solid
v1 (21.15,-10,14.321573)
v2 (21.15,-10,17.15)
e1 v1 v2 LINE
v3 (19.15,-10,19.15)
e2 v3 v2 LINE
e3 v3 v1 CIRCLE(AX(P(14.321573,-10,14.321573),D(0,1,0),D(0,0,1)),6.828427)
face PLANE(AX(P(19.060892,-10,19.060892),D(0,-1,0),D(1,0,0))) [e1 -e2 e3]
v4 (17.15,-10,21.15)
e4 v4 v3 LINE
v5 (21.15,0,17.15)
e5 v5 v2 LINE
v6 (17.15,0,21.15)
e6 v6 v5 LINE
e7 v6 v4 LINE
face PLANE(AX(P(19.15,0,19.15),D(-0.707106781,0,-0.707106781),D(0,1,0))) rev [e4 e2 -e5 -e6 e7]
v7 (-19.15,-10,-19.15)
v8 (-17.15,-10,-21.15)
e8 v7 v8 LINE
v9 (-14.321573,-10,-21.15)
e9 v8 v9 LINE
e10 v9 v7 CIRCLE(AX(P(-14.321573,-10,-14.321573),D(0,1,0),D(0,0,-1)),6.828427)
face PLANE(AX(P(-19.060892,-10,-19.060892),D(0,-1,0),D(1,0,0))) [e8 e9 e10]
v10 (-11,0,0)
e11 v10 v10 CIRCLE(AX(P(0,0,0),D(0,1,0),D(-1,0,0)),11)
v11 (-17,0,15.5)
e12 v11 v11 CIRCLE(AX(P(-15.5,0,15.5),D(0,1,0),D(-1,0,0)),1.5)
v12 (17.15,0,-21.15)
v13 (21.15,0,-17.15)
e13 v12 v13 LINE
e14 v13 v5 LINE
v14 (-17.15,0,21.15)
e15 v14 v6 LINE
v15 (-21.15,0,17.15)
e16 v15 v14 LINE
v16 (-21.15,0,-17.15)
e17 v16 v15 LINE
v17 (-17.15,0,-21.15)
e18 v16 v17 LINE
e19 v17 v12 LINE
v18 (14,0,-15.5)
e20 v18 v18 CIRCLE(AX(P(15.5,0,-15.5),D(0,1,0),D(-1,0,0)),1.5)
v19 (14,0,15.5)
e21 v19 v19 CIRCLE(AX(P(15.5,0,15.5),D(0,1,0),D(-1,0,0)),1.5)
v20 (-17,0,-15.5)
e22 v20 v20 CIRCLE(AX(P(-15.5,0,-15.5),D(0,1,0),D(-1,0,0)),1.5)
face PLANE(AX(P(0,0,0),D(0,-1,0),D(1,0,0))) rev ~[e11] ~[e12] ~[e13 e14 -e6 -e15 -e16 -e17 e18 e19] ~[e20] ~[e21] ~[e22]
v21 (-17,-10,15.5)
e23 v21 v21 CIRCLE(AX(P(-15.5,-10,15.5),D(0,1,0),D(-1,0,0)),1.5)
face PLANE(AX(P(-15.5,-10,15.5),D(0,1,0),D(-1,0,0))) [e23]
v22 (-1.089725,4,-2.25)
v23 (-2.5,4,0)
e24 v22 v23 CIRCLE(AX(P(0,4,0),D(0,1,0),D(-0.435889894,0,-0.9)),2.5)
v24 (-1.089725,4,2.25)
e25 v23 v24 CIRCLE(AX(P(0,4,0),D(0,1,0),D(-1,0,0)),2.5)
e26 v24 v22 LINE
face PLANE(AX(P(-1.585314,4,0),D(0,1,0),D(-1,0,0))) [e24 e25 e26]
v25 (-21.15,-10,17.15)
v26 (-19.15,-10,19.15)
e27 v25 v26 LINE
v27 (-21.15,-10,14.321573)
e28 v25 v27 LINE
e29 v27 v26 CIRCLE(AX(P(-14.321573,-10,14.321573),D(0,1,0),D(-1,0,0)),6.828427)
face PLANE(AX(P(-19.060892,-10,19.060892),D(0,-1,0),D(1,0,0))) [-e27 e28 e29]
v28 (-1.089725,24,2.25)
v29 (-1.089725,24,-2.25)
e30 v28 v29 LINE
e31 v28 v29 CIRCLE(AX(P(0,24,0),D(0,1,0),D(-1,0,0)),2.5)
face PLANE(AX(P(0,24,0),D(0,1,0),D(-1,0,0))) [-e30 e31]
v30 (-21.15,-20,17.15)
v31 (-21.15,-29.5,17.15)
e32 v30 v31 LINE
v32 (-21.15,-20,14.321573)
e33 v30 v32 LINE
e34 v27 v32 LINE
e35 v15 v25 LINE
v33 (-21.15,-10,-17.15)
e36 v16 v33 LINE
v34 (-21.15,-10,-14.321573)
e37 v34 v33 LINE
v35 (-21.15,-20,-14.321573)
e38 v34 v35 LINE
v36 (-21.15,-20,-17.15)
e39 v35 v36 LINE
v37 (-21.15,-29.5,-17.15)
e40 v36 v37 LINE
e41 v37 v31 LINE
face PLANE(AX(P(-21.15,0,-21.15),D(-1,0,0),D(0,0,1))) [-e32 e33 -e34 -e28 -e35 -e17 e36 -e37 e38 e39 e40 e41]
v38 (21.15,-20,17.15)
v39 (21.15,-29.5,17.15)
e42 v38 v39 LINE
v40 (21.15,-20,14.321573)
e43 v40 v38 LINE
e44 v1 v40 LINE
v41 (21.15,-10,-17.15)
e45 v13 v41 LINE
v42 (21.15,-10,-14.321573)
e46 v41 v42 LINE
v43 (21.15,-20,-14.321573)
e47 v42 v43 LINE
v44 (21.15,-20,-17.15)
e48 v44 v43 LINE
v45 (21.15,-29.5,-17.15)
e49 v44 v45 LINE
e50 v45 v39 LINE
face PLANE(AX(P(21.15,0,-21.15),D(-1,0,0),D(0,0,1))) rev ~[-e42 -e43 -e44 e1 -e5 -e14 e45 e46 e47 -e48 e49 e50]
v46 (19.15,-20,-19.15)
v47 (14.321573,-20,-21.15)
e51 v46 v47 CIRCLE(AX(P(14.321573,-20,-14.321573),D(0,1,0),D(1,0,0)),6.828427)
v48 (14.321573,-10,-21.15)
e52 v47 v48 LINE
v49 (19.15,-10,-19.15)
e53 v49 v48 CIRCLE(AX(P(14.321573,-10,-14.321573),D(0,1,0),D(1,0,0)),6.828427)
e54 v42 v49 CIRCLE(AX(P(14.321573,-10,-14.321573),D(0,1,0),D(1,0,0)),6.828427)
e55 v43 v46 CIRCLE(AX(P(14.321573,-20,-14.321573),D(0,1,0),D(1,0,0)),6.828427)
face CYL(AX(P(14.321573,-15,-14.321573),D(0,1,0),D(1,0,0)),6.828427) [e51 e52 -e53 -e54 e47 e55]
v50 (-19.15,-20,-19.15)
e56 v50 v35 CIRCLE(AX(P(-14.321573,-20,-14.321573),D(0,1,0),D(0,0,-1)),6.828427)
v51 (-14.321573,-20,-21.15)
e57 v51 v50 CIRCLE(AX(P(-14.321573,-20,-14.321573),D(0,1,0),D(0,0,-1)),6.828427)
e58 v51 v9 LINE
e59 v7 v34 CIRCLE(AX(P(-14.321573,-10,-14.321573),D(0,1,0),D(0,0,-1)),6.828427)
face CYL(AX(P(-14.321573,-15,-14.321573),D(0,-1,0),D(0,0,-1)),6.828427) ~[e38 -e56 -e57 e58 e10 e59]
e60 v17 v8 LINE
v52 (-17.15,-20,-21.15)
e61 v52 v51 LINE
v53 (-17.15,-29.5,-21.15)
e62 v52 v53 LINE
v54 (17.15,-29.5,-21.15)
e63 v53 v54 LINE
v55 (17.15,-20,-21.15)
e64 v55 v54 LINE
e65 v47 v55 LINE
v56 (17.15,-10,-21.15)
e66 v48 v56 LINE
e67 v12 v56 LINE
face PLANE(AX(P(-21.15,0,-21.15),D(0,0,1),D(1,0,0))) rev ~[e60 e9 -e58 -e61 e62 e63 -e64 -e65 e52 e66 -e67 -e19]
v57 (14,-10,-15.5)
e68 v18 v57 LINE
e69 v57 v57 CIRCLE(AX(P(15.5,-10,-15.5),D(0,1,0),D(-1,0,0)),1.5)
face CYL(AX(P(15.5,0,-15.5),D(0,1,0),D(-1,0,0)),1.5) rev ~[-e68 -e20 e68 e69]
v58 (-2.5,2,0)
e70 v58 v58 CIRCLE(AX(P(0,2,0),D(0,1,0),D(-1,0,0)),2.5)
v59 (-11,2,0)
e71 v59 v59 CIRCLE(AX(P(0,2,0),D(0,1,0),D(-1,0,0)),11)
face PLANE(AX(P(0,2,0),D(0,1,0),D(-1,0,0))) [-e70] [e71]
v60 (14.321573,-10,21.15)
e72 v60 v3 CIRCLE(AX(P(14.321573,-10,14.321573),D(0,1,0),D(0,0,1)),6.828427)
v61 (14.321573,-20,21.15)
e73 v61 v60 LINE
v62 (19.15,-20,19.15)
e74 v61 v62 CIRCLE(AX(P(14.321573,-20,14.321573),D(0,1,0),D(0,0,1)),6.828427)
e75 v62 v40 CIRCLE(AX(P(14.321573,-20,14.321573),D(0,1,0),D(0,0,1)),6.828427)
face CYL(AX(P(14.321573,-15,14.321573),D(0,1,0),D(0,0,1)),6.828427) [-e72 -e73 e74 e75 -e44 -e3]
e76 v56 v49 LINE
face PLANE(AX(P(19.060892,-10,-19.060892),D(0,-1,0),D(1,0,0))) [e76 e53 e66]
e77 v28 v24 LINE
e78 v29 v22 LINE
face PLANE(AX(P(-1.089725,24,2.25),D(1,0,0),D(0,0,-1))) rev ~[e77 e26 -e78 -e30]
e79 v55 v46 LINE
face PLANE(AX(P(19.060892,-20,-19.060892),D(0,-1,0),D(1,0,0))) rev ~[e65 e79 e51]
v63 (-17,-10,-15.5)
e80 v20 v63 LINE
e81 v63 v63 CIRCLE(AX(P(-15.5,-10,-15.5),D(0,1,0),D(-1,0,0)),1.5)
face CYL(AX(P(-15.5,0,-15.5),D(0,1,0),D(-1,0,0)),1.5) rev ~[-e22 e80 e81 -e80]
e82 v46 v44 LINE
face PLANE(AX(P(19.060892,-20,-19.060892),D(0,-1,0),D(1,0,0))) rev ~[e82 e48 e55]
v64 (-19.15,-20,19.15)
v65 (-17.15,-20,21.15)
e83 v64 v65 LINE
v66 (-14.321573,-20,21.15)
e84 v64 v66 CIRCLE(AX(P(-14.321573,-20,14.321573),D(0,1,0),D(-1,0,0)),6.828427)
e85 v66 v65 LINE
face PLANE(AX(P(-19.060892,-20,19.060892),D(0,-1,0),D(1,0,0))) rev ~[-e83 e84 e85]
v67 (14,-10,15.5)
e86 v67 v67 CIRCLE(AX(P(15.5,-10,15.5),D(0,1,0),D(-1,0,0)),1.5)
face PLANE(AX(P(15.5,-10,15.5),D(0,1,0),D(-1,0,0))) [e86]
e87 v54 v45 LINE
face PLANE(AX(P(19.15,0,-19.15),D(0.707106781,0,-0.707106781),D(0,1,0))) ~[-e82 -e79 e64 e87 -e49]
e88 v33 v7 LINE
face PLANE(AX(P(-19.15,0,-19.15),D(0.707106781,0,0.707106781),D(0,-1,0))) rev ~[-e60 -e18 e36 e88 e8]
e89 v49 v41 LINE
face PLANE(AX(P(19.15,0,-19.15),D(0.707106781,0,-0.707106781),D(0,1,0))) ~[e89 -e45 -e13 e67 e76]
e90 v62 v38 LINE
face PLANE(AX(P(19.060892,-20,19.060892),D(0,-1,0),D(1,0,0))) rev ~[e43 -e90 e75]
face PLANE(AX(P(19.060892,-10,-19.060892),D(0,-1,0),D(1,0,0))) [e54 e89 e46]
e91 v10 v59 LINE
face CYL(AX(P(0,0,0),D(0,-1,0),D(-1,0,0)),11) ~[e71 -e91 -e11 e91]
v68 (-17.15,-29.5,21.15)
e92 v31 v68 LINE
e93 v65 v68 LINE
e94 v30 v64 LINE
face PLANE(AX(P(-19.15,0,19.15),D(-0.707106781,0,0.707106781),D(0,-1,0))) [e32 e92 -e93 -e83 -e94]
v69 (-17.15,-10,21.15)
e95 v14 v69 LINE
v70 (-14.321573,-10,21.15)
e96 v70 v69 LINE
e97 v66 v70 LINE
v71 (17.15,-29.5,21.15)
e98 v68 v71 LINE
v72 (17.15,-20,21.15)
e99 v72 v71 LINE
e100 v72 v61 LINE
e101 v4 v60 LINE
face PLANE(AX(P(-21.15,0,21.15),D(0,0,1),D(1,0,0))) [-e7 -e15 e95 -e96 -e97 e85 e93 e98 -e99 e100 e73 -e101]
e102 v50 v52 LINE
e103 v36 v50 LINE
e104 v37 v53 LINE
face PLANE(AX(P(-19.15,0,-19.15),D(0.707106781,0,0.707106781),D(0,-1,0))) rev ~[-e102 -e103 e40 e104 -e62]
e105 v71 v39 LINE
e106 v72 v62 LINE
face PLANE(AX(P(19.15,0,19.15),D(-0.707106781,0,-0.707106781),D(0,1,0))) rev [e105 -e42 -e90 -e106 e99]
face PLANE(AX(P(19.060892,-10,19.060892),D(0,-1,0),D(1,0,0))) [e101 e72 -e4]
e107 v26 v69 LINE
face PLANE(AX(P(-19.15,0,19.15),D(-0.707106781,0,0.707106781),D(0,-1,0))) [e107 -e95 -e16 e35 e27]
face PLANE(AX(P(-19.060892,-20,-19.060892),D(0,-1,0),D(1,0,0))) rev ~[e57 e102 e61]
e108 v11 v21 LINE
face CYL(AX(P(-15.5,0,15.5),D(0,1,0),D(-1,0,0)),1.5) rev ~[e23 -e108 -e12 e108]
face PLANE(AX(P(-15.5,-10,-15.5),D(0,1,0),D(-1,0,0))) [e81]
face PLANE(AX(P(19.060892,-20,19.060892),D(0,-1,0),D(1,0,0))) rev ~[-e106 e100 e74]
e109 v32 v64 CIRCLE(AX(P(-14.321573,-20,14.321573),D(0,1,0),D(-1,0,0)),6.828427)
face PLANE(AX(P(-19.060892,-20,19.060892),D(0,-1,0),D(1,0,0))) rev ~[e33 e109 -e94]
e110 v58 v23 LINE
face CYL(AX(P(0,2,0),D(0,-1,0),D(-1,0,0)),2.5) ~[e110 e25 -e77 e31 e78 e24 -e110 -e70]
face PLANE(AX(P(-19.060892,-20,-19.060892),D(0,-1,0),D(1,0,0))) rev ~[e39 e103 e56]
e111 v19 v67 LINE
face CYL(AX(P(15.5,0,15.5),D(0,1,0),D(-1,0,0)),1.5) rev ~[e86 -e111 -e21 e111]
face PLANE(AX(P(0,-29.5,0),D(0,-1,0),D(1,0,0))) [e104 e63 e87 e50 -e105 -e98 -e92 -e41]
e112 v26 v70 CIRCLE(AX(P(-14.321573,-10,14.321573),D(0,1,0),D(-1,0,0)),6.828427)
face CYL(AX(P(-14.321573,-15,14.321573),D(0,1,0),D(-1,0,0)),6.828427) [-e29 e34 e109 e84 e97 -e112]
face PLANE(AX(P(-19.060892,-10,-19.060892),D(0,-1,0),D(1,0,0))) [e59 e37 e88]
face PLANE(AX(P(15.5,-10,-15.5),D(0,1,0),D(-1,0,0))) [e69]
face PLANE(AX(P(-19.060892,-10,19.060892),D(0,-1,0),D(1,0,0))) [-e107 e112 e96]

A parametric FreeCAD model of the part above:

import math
import FreeCAD as App
import Part
import Sketcher
from FreeCAD import Vector
Q = App.Units.Quantity


def edges_at(feature, points):
    """Names of the edges that pass closest to the given points."""
    edges = feature.Shape.Edges
    near = lambda p: min(range(len(edges)), key=lambda i: edges[i].distToShape(Part.Vertex(*p))[0])
    return sorted({f"Edge{near(p) + 1}" for p in points})

doc = App.newDocument("Part")
body = doc.addObject("PartDesign::Body", "Body")

# Sketch on XZ plane
sketch1 = body.newObject("Sketcher::SketchObject", "Sketch")
sketch1.AttachmentSupport = (doc.getObject("XZ_Plane"), [""])
sketch1.MapMode = "FlatFace"
sketch1.addGeometry(Part.LineSegment(Vector(-21, 21, 0), Vector(-21, -21, 0)), False)
sketch1.addGeometry(Part.LineSegment(Vector(-21, -21, 0), Vector(21, -21, 0)), False)
sketch1.addGeometry(Part.LineSegment(Vector(21, -21, 0), Vector(21, 21, 0)), False)
sketch1.addGeometry(Part.LineSegment(Vector(21, 21, 0), Vector(-21, 21, 0)), False)
sketch1.addConstraint(Sketcher.Constraint("Coincident", 0, 2, 1, 1))
sketch1.addConstraint(Sketcher.Constraint("Coincident", 1, 2, 2, 1))
sketch1.addConstraint(Sketcher.Constraint("Coincident", 2, 2, 3, 1))
sketch1.addConstraint(Sketcher.Constraint("Coincident", 3, 2, 0, 1))
sketch1.addConstraint(Sketcher.Constraint("Vertical", 0))
sketch1.addConstraint(Sketcher.Constraint("Horizontal", 1))
sketch1.addConstraint(Sketcher.Constraint("Vertical", 2))
sketch1.addConstraint(Sketcher.Constraint("Horizontal", 3))
sketch1.addConstraint(Sketcher.Constraint("Symmetric", 0, 2, 2, 2, -1, 1))
sketch1.addConstraint(Sketcher.Constraint("Equal", 3, 0))
sketch1.addConstraint(Sketcher.Constraint("DistanceX", 1, 1, 1, 2, Q("42.3 mm")))
pad1 = body.newObject("PartDesign::Pad", "Pad")
pad1.Profile = sketch1
pad1.Length = 29.5

# Sketch on XZ plane
sketch2 = body.newObject("Sketcher::SketchObject", "Sketch001")
sketch2.AttachmentSupport = (doc.getObject("XZ_Plane"), [""])
sketch2.MapMode = "FlatFace"
sketch2.addGeometry(Part.Circle(Vector(0, 0, 0), Vector(0, 0, 1), 11), False)
sketch2.addConstraint(Sketcher.Constraint("Coincident", 0, 3, -1, 1))
sketch2.addConstraint(Sketcher.Constraint("Diameter", 0, Q("22 mm")))
pad2 = body.newObject("PartDesign::Pad", "Pad001")
pad2.Profile = sketch2
pad2.Length = 2
pad2.Reversed = True

# Sketch on XZ plane
sketch3 = body.newObject("Sketcher::SketchObject", "Sketch002")
sketch3.AttachmentSupport = (doc.getObject("XZ_Plane"), [""])
sketch3.MapMode = "FlatFace"
sketch3.AttachmentOffset = App.Placement(Vector(0, 0, -2), App.Rotation())
sketch3.addGeometry(Part.Circle(Vector(0, 0, 0), Vector(0, 0, 1), 2.5), False)
sketch3.addConstraint(Sketcher.Constraint("Coincident", 0, 3, -1, 1))
sketch3.addConstraint(Sketcher.Constraint("Diameter", 0, Q("5 mm")))
pad3 = body.newObject("PartDesign::Pad", "Pad002")
pad3.Profile = sketch3
pad3.Length = 22
pad3.Reversed = True

# Sketch on XZ plane
sketch4 = body.newObject("Sketcher::SketchObject", "Sketch003")
sketch4.AttachmentSupport = (doc.getObject("XZ_Plane"), [""])
sketch4.MapMode = "FlatFace"
sketch4.AttachmentOffset = App.Placement(Vector(0, 0, -24), App.Rotation())
sketch4.addGeometry(Part.ArcOfCircle(Part.Circle(Vector(0, 0, 0), Vector(0, 0, 1), 2.5), math.radians(116), math.radians(180)), False)
sketch4.addGeometry(Part.LineSegment(Vector(-1.1, 2.2, 0), Vector(-1.1, -2.2, 0)), False)
sketch4.addGeometry(Part.ArcOfCircle(Part.Circle(Vector(0, 0, 0), Vector(0, 0, 1), 2.5), math.radians(180), math.radians(244)), False)
sketch4.addConstraint(Sketcher.Constraint("Coincident", 0, 1, 1, 1))
sketch4.addConstraint(Sketcher.Constraint("Coincident", 1, 2, 2, 2))
sketch4.addConstraint(Sketcher.Constraint("Tangent", 2, 1, 0, 2))
sketch4.addConstraint(Sketcher.Constraint("Vertical", 1))
sketch4.addConstraint(Sketcher.Constraint("Coincident", 0, 3, -1, 1))
sketch4.addConstraint(Sketcher.Constraint("Equal", 0, 2))
sketch4.addConstraint(Sketcher.Constraint("PointOnObject", 2, 1, -1))
sketch4.addConstraint(Sketcher.Constraint("Radius", 0, Q("2.5 mm")))
sketch4.addConstraint(Sketcher.Constraint("DistanceY", 1, 2, 1, 1, Q("4.5 mm")))
pocket1 = body.newObject("PartDesign::Pocket", "Pocket")
pocket1.Profile = sketch4
pocket1.Length = 20
pocket1.Reversed = True
doc.recompute()

chamfer = body.newObject("PartDesign::Chamfer", "Chamfer")
chamfer.Base = (pocket1, edges_at(pocket1, [
    (-21.15, -14.75, 21.15),
    (-21.15, -14.75, -21.15),
    (21.15, -14.75, -21.15),
    (21.15, -14.75, 21.15),
]))
chamfer.Size = 4

# Sketch on XZ plane
sketch5 = body.newObject("Sketcher::SketchObject", "Sketch004")
sketch5.AttachmentSupport = (doc.getObject("XZ_Plane"), [""])
sketch5.MapMode = "FlatFace"
sketch5.AttachmentOffset = App.Placement(Vector(0, 0, 15), App.Rotation())
sketch5.addGeometry(Part.ArcOfCircle(Part.Circle(Vector(14, 14, 0), Vector(0, 0, 1), 7), math.radians(0), math.radians(90)), False)
sketch5.addGeometry(Part.LineSegment(Vector(21, 14, 0), Vector(21, 21, 0)), False)
sketch5.addGeometry(Part.LineSegment(Vector(21, 21, 0), Vector(14, 21, 0)), False)
sketch5.addGeometry(Part.LineSegment(Vector(-21, 21, 0), Vector(-21, 14, 0)), False)
sketch5.addGeometry(Part.ArcOfCircle(Part.Circle(Vector(-14, 14, 0), Vector(0, 0, 1), 7), math.radians(90), math.radians(180)), False)
sketch5.addGeometry(Part.LineSegment(Vector(-14, 21, 0), Vector(-21, 21, 0)), False)
sketch5.addGeometry(Part.LineSegment(Vector(21, -21, 0), Vector(21, -14, 0)), False)
sketch5.addGeometry(Part.ArcOfCircle(Part.Circle(Vector(14, -14, 0), Vector(0, 0, 1), 7), math.radians(-90), math.radians(0)), False)
sketch5.addGeometry(Part.LineSegment(Vector(14, -21, 0), Vector(21, -21, 0)), False)
sketch5.addGeometry(Part.ArcOfCircle(Part.Circle(Vector(-14, -14, 0), Vector(0, 0, 1), 7), math.radians(180), math.radians(270)), False)
sketch5.addGeometry(Part.LineSegment(Vector(-21, -14, 0), Vector(-21, -21, 0)), False)
sketch5.addGeometry(Part.LineSegment(Vector(-21, -21, 0), Vector(-14, -21, 0)), False)
sketch5.addConstraint(Sketcher.Constraint("Tangent", 0, 1, 1, 1))
sketch5.addConstraint(Sketcher.Constraint("Coincident", 1, 2, 2, 1))
sketch5.addConstraint(Sketcher.Constraint("Tangent", 2, 2, 0, 2))
sketch5.addConstraint(Sketcher.Constraint("Tangent", 3, 2, 4, 2))
sketch5.addConstraint(Sketcher.Constraint("Tangent", 4, 1, 5, 1))
sketch5.addConstraint(Sketcher.Constraint("Coincident", 5, 2, 3, 1))
sketch5.addConstraint(Sketcher.Constraint("Tangent", 6, 2, 7, 2))
sketch5.addConstraint(Sketcher.Constraint("Tangent", 7, 1, 8, 1))
sketch5.addConstraint(Sketcher.Constraint("Coincident", 8, 2, 6, 1))
sketch5.addConstraint(Sketcher.Constraint("Tangent", 9, 1, 10, 1))
sketch5.addConstraint(Sketcher.Constraint("Coincident", 10, 2, 11, 1))
sketch5.addConstraint(Sketcher.Constraint("Tangent", 11, 2, 9, 2))
sketch5.addConstraint(Sketcher.Constraint("Vertical", 1))
sketch5.addConstraint(Sketcher.Constraint("Horizontal", 2))
sketch5.addConstraint(Sketcher.Constraint("Vertical", 3))
sketch5.addConstraint(Sketcher.Constraint("Horizontal", 5))
sketch5.addConstraint(Sketcher.Constraint("Vertical", 6))
sketch5.addConstraint(Sketcher.Constraint("Horizontal", 8))
sketch5.addConstraint(Sketcher.Constraint("Vertical", 10))
sketch5.addConstraint(Sketcher.Constraint("Horizontal", 11))
sketch5.addConstraint(Sketcher.Constraint("Equal", 0, 4))
sketch5.addConstraint(Sketcher.Constraint("Equal", 4, 7))
sketch5.addConstraint(Sketcher.Constraint("Equal", 7, 9))
sketch5.addConstraint(Sketcher.Constraint("Symmetric", 4, 3, 7, 3, -1, 1))
sketch5.addConstraint(Sketcher.Constraint("Symmetric", 0, 3, 9, 3, -1, 1))
sketch5.addConstraint(Sketcher.Constraint("Symmetric", 0, 3, 4, 3, -2))
sketch5.addConstraint(Sketcher.Constraint("DistanceX", 3, 2, 0, 1, Q("42.3 mm")))
sketch5.addConstraint(Sketcher.Constraint("DistanceY", -1, 1, 1, 2, Q("21.15 mm")))
sketch5.addConstraint(Sketcher.Constraint("Radius", 0, Q("6.828427 mm")))
pocket2 = body.newObject("PartDesign::Pocket", "Pocket001")
pocket2.Profile = sketch5
pocket2.Length = 10
pocket2.Midplane = True

# Sketch on XZ plane
sketch6 = body.newObject("Sketcher::SketchObject", "Sketch005")
sketch6.AttachmentSupport = (doc.getObject("XZ_Plane"), [""])
sketch6.MapMode = "FlatFace"
sketch6.addGeometry(Part.Circle(Vector(15.5, 15.5, 0), Vector(0, 0, 1), 1.5), False)
sketch6.addGeometry(Part.Circle(Vector(-15.5, 15.5, 0), Vector(0, 0, 1), 1.5), False)
sketch6.addGeometry(Part.Circle(Vector(15.5, -15.5, 0), Vector(0, 0, 1), 1.5), False)
sketch6.addGeometry(Part.Circle(Vector(-15.5, -15.5, 0), Vector(0, 0, 1), 1.5), False)
sketch6.addConstraint(Sketcher.Constraint("Equal", 0, 1))
sketch6.addConstraint(Sketcher.Constraint("Equal", 1, 2))
sketch6.addConstraint(Sketcher.Constraint("Equal", 2, 3))
sketch6.addConstraint(Sketcher.Constraint("Symmetric", 1, 3, 2, 3, -1, 1))
sketch6.addConstraint(Sketcher.Constraint("Symmetric", 0, 3, 3, 3, -1, 1))
sketch6.addConstraint(Sketcher.Constraint("Symmetric", 0, 3, 1, 3, -2))
sketch6.addConstraint(Sketcher.Constraint("Diameter", 0, Q("3 mm")))
sketch6.addConstraint(Sketcher.Constraint("DistanceX", 1, 3, 0, 3, Q("31 mm")))
sketch6.addConstraint(Sketcher.Constraint("DistanceY", 2, 3, 0, 3, Q("31 mm")))
pocket3 = body.newObject("PartDesign::Pocket", "Pocket002")
pocket3.Profile = sketch6
pocket3.Length = 10
pocket3.Reversed = True

doc.recompute()
